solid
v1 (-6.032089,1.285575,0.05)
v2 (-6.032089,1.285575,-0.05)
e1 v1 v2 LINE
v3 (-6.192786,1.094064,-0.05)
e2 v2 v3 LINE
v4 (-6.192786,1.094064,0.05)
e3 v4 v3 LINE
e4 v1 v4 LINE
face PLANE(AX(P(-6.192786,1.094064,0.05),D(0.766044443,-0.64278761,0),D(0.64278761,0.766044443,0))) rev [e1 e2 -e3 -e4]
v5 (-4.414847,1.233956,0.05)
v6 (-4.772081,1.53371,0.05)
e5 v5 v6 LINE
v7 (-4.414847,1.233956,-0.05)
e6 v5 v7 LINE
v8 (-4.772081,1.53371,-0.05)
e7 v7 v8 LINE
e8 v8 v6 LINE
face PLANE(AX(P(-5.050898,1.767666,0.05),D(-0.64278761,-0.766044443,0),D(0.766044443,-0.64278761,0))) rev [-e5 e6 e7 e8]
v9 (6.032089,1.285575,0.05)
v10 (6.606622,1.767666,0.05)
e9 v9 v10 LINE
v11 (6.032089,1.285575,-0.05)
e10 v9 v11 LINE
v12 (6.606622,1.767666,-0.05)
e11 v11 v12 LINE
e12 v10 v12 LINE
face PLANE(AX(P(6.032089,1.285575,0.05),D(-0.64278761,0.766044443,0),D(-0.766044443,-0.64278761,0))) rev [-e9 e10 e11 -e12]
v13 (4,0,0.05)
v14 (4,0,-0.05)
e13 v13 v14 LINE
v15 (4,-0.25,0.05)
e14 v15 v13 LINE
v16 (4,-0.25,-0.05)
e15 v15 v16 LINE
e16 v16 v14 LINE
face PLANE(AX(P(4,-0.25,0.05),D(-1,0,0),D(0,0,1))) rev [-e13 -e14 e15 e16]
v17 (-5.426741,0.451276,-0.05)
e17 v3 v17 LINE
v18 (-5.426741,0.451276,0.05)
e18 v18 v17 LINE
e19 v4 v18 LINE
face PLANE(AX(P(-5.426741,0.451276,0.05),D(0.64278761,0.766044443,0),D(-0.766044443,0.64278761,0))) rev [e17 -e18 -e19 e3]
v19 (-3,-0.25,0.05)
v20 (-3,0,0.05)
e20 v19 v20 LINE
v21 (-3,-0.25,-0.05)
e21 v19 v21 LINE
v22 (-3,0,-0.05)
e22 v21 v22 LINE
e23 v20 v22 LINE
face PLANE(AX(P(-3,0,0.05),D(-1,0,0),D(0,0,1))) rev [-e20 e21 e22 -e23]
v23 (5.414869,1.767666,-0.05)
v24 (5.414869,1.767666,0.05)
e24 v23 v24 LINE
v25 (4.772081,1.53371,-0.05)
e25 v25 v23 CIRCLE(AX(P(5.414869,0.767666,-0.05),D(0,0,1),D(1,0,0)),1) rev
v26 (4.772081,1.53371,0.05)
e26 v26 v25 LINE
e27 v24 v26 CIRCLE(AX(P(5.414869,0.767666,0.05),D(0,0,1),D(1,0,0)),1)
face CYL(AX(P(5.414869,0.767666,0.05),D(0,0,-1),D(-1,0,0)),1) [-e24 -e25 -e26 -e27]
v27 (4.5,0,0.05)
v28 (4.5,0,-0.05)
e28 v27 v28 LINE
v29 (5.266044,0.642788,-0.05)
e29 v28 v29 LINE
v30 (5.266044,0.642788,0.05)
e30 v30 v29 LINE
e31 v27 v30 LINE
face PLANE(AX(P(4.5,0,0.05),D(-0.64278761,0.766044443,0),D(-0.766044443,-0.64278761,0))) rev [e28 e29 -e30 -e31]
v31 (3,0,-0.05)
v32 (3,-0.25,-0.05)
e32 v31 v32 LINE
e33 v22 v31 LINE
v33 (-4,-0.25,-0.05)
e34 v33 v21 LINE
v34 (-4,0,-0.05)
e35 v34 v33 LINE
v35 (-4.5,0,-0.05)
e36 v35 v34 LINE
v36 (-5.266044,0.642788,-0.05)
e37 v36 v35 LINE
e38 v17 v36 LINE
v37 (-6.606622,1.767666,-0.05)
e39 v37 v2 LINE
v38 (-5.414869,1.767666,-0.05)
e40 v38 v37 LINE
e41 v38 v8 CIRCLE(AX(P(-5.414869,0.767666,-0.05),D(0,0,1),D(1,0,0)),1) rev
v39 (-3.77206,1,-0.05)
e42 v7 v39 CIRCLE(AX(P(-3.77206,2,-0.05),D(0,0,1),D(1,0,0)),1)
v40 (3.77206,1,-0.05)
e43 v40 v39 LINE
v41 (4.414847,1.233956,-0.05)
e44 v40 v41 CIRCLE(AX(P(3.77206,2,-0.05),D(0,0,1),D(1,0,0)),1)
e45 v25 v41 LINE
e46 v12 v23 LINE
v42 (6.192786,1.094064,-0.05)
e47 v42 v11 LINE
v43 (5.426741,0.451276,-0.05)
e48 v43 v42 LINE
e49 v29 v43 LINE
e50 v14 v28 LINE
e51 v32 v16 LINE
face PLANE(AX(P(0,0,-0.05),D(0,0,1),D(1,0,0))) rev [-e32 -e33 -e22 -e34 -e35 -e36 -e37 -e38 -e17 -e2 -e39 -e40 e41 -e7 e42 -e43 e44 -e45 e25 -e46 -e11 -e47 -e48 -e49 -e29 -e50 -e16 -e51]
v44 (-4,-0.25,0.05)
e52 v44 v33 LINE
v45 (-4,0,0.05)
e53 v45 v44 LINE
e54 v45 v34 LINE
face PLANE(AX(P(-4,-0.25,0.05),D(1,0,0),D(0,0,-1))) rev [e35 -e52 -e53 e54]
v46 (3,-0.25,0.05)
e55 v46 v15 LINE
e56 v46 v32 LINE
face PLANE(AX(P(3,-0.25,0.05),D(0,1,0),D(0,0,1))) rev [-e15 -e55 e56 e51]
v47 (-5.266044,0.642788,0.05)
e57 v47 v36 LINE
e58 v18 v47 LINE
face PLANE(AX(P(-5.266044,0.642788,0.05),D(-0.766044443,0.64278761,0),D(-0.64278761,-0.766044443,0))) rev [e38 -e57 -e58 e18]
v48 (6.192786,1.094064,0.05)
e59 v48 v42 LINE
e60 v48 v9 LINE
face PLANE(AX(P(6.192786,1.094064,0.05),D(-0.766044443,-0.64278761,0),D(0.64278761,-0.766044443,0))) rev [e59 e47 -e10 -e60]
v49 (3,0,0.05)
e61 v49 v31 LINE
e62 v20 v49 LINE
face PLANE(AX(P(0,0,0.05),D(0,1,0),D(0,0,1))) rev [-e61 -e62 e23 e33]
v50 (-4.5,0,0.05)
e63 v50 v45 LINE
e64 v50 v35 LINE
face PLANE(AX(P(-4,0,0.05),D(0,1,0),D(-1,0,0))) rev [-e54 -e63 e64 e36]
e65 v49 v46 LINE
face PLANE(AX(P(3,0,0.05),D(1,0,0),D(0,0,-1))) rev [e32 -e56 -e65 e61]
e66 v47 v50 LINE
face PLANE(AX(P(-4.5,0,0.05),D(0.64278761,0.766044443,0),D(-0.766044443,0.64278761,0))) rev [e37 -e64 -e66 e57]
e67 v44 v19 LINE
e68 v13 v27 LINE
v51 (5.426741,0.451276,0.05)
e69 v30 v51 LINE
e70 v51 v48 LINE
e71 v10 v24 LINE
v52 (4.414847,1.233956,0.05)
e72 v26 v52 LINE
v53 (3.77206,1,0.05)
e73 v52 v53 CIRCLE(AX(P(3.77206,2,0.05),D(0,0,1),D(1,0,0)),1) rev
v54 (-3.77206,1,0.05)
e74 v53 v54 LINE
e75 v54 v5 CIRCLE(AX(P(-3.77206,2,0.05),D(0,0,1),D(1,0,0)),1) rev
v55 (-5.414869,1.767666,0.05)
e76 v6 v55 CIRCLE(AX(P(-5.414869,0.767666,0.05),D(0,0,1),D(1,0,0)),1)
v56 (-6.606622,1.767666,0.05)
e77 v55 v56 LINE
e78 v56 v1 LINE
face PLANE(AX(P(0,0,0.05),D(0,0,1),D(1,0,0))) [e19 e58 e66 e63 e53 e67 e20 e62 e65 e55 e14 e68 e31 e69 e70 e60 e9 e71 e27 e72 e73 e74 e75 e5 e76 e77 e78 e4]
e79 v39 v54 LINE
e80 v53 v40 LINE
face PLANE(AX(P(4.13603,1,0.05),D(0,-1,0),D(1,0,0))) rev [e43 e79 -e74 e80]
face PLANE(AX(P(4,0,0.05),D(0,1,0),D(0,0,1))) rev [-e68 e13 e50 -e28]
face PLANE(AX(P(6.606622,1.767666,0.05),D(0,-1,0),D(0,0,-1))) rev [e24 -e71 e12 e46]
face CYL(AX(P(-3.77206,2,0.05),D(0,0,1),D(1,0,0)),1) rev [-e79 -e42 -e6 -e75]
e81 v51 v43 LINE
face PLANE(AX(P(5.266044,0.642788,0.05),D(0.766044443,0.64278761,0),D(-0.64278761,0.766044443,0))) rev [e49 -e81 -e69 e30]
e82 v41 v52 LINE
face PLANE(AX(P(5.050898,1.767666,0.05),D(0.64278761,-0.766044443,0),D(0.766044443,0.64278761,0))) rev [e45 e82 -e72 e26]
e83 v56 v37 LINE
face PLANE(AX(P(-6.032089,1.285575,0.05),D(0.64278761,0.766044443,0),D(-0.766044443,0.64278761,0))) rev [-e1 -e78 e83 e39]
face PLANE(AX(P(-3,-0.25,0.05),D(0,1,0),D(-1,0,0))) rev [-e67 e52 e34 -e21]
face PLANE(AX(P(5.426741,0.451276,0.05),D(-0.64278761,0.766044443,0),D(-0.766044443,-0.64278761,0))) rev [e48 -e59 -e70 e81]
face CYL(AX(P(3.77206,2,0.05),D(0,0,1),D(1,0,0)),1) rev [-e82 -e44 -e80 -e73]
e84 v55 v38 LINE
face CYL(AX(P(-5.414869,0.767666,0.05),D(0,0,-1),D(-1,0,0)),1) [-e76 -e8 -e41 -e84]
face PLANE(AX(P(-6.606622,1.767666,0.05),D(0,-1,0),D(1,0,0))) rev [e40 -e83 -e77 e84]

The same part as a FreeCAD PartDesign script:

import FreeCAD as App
import Part
import Sketcher
from FreeCAD import Vector
Q = App.Units.Quantity


def edges_at(feature, points):
    """Names of the edges that pass closest to the given points."""
    edges = feature.Shape.Edges
    near = lambda p: min(range(len(edges)), key=lambda i: edges[i].distToShape(Part.Vertex(*p))[0])
    return sorted({f"Edge{near(p) + 1}" for p in points})


def add_polygon(sketch, points):
    """Adds a closed chain of lines whose ends are joined by coincident constraints."""
    first, n = sketch.GeometryCount, len(points)
    for a, b in zip(points, points[1:] + points[:1]):
        sketch.addGeometry(Part.LineSegment(App.Vector(*a, 0), App.Vector(*b, 0)), False)
    for i in range(n):
        sketch.addConstraint(Sketcher.Constraint("Coincident", first + i, 2, first + (i + 1) % n, 1))

doc = App.newDocument("Part")
body = doc.addObject("PartDesign::Body", "Body")

# Sketch on XY plane
sketch1 = body.newObject("Sketcher::SketchObject", "Sketch")
sketch1.AttachmentSupport = (doc.getObject("XY_Plane"), [""])
sketch1.MapMode = "FlatFace"
add_polygon(sketch1, [(3, 0), (3, -0.25), (4, -0.25), (4, 0), (4.5, 0), (5.27, 0.64), (5.43, 0.45), (6.19, 1.09), (6.03, 1.29), (6.61, 1.77), (5.05, 1.77), (4.14, 1), (-4.14, 1), (-5.05, 1.77), (-6.61, 1.77), (-6.03, 1.29), (-6.19, 1.09), (-5.43, 0.45), (-5.27, 0.64), (-4.5, 0), (-4, 0), (-4, -0.25), (-3, -0.25), (-3, 0)])  # lines 0-23
sketch1.addConstraint([
    Sketcher.Constraint("Vertical", 0),
    Sketcher.Constraint("Horizontal", 1),
    Sketcher.Constraint("Vertical", 2),
    Sketcher.Constraint("Horizontal", 3),
    Sketcher.Constraint("Horizontal", 9),
    Sketcher.Constraint("Horizontal", 11),
    Sketcher.Constraint("Horizontal", 13),
    Sketcher.Constraint("Horizontal", 19),
    Sketcher.Constraint("Vertical", 20),
    Sketcher.Constraint("Horizontal", 21),
    Sketcher.Constraint("Vertical", 22),
    Sketcher.Constraint("Horizontal", 23),
    Sketcher.Constraint("Symmetric", 3, 2, 18, 2, -1, 1),
    Sketcher.Constraint("Symmetric", 22, 2, 23, 2, -1, 1),
    Sketcher.Constraint("Symmetric", 9, 2, 12, 2, -2),
    Sketcher.Constraint("Symmetric", 7, 2, 14, 2, -2),
    Sketcher.Constraint("Symmetric", 6, 2, 15, 2, -2),
    Sketcher.Constraint("Symmetric", 5, 2, 16, 2, -2),
    Sketcher.Constraint("Symmetric", 4, 2, 17, 2, -2),
    Sketcher.Constraint("Symmetric", 2, 2, 19, 2, -2),
    Sketcher.Constraint("Perpendicular", 4, 5),
    Sketcher.Constraint("Perpendicular", 5, 6),
    Sketcher.Constraint("Perpendicular", 6, 7),
    Sketcher.Constraint("Perpendicular", 7, 8),
    Sketcher.Constraint("Parallel", 8, 10),
    Sketcher.Constraint("Parallel", 12, 14),
    Sketcher.Constraint("Perpendicular", 14, 15),
    Sketcher.Constraint("Horizontal", 1, 2, 20, 2),
    Sketcher.Constraint("Equal", 4, 6),
    Sketcher.Constraint("Equal", 5, 7),
    Sketcher.Constraint("DistanceX", 1, 1, 1, 2, 1.0),
    Sketcher.Constraint("DistanceX", 23, 1, 23, 2, 6.0),
    Sketcher.Constraint("Angle", 4, Q("40 deg")),
    Sketcher.Constraint("Distance", 4, 1.0),
    Sketcher.Constraint("DistanceX", 3, 1, 3, 2, 0.5),
    Sketcher.Constraint("DistanceY", -1, 1, 10, 2, 1.0),
    Sketcher.Constraint("DistanceY", 0, 2, 0, 1, 0.25),
    Sketcher.Constraint("Distance", 5, 0.25),
    Sketcher.Constraint("Distance", 8, 0.75),
    Sketcher.Constraint("DistanceX", 11, 2, 11, 1, 8.27206),
])
pad1 = body.newObject("PartDesign::Pad", "Pad")
pad1.Profile = sketch1
pad1.Length = 0.1
pad1.Midplane = True
doc.recompute()

fillet = body.newObject("PartDesign::Fillet", "Fillet")
fillet.Base = (pad1, edges_at(pad1, [
    (-5.051, 1.768, 0),
    (-4.136, 1, 0),
    (4.136, 1, 0),
    (5.051, 1.768, 0),
]))
fillet.Radius = 1

doc.recompute()
